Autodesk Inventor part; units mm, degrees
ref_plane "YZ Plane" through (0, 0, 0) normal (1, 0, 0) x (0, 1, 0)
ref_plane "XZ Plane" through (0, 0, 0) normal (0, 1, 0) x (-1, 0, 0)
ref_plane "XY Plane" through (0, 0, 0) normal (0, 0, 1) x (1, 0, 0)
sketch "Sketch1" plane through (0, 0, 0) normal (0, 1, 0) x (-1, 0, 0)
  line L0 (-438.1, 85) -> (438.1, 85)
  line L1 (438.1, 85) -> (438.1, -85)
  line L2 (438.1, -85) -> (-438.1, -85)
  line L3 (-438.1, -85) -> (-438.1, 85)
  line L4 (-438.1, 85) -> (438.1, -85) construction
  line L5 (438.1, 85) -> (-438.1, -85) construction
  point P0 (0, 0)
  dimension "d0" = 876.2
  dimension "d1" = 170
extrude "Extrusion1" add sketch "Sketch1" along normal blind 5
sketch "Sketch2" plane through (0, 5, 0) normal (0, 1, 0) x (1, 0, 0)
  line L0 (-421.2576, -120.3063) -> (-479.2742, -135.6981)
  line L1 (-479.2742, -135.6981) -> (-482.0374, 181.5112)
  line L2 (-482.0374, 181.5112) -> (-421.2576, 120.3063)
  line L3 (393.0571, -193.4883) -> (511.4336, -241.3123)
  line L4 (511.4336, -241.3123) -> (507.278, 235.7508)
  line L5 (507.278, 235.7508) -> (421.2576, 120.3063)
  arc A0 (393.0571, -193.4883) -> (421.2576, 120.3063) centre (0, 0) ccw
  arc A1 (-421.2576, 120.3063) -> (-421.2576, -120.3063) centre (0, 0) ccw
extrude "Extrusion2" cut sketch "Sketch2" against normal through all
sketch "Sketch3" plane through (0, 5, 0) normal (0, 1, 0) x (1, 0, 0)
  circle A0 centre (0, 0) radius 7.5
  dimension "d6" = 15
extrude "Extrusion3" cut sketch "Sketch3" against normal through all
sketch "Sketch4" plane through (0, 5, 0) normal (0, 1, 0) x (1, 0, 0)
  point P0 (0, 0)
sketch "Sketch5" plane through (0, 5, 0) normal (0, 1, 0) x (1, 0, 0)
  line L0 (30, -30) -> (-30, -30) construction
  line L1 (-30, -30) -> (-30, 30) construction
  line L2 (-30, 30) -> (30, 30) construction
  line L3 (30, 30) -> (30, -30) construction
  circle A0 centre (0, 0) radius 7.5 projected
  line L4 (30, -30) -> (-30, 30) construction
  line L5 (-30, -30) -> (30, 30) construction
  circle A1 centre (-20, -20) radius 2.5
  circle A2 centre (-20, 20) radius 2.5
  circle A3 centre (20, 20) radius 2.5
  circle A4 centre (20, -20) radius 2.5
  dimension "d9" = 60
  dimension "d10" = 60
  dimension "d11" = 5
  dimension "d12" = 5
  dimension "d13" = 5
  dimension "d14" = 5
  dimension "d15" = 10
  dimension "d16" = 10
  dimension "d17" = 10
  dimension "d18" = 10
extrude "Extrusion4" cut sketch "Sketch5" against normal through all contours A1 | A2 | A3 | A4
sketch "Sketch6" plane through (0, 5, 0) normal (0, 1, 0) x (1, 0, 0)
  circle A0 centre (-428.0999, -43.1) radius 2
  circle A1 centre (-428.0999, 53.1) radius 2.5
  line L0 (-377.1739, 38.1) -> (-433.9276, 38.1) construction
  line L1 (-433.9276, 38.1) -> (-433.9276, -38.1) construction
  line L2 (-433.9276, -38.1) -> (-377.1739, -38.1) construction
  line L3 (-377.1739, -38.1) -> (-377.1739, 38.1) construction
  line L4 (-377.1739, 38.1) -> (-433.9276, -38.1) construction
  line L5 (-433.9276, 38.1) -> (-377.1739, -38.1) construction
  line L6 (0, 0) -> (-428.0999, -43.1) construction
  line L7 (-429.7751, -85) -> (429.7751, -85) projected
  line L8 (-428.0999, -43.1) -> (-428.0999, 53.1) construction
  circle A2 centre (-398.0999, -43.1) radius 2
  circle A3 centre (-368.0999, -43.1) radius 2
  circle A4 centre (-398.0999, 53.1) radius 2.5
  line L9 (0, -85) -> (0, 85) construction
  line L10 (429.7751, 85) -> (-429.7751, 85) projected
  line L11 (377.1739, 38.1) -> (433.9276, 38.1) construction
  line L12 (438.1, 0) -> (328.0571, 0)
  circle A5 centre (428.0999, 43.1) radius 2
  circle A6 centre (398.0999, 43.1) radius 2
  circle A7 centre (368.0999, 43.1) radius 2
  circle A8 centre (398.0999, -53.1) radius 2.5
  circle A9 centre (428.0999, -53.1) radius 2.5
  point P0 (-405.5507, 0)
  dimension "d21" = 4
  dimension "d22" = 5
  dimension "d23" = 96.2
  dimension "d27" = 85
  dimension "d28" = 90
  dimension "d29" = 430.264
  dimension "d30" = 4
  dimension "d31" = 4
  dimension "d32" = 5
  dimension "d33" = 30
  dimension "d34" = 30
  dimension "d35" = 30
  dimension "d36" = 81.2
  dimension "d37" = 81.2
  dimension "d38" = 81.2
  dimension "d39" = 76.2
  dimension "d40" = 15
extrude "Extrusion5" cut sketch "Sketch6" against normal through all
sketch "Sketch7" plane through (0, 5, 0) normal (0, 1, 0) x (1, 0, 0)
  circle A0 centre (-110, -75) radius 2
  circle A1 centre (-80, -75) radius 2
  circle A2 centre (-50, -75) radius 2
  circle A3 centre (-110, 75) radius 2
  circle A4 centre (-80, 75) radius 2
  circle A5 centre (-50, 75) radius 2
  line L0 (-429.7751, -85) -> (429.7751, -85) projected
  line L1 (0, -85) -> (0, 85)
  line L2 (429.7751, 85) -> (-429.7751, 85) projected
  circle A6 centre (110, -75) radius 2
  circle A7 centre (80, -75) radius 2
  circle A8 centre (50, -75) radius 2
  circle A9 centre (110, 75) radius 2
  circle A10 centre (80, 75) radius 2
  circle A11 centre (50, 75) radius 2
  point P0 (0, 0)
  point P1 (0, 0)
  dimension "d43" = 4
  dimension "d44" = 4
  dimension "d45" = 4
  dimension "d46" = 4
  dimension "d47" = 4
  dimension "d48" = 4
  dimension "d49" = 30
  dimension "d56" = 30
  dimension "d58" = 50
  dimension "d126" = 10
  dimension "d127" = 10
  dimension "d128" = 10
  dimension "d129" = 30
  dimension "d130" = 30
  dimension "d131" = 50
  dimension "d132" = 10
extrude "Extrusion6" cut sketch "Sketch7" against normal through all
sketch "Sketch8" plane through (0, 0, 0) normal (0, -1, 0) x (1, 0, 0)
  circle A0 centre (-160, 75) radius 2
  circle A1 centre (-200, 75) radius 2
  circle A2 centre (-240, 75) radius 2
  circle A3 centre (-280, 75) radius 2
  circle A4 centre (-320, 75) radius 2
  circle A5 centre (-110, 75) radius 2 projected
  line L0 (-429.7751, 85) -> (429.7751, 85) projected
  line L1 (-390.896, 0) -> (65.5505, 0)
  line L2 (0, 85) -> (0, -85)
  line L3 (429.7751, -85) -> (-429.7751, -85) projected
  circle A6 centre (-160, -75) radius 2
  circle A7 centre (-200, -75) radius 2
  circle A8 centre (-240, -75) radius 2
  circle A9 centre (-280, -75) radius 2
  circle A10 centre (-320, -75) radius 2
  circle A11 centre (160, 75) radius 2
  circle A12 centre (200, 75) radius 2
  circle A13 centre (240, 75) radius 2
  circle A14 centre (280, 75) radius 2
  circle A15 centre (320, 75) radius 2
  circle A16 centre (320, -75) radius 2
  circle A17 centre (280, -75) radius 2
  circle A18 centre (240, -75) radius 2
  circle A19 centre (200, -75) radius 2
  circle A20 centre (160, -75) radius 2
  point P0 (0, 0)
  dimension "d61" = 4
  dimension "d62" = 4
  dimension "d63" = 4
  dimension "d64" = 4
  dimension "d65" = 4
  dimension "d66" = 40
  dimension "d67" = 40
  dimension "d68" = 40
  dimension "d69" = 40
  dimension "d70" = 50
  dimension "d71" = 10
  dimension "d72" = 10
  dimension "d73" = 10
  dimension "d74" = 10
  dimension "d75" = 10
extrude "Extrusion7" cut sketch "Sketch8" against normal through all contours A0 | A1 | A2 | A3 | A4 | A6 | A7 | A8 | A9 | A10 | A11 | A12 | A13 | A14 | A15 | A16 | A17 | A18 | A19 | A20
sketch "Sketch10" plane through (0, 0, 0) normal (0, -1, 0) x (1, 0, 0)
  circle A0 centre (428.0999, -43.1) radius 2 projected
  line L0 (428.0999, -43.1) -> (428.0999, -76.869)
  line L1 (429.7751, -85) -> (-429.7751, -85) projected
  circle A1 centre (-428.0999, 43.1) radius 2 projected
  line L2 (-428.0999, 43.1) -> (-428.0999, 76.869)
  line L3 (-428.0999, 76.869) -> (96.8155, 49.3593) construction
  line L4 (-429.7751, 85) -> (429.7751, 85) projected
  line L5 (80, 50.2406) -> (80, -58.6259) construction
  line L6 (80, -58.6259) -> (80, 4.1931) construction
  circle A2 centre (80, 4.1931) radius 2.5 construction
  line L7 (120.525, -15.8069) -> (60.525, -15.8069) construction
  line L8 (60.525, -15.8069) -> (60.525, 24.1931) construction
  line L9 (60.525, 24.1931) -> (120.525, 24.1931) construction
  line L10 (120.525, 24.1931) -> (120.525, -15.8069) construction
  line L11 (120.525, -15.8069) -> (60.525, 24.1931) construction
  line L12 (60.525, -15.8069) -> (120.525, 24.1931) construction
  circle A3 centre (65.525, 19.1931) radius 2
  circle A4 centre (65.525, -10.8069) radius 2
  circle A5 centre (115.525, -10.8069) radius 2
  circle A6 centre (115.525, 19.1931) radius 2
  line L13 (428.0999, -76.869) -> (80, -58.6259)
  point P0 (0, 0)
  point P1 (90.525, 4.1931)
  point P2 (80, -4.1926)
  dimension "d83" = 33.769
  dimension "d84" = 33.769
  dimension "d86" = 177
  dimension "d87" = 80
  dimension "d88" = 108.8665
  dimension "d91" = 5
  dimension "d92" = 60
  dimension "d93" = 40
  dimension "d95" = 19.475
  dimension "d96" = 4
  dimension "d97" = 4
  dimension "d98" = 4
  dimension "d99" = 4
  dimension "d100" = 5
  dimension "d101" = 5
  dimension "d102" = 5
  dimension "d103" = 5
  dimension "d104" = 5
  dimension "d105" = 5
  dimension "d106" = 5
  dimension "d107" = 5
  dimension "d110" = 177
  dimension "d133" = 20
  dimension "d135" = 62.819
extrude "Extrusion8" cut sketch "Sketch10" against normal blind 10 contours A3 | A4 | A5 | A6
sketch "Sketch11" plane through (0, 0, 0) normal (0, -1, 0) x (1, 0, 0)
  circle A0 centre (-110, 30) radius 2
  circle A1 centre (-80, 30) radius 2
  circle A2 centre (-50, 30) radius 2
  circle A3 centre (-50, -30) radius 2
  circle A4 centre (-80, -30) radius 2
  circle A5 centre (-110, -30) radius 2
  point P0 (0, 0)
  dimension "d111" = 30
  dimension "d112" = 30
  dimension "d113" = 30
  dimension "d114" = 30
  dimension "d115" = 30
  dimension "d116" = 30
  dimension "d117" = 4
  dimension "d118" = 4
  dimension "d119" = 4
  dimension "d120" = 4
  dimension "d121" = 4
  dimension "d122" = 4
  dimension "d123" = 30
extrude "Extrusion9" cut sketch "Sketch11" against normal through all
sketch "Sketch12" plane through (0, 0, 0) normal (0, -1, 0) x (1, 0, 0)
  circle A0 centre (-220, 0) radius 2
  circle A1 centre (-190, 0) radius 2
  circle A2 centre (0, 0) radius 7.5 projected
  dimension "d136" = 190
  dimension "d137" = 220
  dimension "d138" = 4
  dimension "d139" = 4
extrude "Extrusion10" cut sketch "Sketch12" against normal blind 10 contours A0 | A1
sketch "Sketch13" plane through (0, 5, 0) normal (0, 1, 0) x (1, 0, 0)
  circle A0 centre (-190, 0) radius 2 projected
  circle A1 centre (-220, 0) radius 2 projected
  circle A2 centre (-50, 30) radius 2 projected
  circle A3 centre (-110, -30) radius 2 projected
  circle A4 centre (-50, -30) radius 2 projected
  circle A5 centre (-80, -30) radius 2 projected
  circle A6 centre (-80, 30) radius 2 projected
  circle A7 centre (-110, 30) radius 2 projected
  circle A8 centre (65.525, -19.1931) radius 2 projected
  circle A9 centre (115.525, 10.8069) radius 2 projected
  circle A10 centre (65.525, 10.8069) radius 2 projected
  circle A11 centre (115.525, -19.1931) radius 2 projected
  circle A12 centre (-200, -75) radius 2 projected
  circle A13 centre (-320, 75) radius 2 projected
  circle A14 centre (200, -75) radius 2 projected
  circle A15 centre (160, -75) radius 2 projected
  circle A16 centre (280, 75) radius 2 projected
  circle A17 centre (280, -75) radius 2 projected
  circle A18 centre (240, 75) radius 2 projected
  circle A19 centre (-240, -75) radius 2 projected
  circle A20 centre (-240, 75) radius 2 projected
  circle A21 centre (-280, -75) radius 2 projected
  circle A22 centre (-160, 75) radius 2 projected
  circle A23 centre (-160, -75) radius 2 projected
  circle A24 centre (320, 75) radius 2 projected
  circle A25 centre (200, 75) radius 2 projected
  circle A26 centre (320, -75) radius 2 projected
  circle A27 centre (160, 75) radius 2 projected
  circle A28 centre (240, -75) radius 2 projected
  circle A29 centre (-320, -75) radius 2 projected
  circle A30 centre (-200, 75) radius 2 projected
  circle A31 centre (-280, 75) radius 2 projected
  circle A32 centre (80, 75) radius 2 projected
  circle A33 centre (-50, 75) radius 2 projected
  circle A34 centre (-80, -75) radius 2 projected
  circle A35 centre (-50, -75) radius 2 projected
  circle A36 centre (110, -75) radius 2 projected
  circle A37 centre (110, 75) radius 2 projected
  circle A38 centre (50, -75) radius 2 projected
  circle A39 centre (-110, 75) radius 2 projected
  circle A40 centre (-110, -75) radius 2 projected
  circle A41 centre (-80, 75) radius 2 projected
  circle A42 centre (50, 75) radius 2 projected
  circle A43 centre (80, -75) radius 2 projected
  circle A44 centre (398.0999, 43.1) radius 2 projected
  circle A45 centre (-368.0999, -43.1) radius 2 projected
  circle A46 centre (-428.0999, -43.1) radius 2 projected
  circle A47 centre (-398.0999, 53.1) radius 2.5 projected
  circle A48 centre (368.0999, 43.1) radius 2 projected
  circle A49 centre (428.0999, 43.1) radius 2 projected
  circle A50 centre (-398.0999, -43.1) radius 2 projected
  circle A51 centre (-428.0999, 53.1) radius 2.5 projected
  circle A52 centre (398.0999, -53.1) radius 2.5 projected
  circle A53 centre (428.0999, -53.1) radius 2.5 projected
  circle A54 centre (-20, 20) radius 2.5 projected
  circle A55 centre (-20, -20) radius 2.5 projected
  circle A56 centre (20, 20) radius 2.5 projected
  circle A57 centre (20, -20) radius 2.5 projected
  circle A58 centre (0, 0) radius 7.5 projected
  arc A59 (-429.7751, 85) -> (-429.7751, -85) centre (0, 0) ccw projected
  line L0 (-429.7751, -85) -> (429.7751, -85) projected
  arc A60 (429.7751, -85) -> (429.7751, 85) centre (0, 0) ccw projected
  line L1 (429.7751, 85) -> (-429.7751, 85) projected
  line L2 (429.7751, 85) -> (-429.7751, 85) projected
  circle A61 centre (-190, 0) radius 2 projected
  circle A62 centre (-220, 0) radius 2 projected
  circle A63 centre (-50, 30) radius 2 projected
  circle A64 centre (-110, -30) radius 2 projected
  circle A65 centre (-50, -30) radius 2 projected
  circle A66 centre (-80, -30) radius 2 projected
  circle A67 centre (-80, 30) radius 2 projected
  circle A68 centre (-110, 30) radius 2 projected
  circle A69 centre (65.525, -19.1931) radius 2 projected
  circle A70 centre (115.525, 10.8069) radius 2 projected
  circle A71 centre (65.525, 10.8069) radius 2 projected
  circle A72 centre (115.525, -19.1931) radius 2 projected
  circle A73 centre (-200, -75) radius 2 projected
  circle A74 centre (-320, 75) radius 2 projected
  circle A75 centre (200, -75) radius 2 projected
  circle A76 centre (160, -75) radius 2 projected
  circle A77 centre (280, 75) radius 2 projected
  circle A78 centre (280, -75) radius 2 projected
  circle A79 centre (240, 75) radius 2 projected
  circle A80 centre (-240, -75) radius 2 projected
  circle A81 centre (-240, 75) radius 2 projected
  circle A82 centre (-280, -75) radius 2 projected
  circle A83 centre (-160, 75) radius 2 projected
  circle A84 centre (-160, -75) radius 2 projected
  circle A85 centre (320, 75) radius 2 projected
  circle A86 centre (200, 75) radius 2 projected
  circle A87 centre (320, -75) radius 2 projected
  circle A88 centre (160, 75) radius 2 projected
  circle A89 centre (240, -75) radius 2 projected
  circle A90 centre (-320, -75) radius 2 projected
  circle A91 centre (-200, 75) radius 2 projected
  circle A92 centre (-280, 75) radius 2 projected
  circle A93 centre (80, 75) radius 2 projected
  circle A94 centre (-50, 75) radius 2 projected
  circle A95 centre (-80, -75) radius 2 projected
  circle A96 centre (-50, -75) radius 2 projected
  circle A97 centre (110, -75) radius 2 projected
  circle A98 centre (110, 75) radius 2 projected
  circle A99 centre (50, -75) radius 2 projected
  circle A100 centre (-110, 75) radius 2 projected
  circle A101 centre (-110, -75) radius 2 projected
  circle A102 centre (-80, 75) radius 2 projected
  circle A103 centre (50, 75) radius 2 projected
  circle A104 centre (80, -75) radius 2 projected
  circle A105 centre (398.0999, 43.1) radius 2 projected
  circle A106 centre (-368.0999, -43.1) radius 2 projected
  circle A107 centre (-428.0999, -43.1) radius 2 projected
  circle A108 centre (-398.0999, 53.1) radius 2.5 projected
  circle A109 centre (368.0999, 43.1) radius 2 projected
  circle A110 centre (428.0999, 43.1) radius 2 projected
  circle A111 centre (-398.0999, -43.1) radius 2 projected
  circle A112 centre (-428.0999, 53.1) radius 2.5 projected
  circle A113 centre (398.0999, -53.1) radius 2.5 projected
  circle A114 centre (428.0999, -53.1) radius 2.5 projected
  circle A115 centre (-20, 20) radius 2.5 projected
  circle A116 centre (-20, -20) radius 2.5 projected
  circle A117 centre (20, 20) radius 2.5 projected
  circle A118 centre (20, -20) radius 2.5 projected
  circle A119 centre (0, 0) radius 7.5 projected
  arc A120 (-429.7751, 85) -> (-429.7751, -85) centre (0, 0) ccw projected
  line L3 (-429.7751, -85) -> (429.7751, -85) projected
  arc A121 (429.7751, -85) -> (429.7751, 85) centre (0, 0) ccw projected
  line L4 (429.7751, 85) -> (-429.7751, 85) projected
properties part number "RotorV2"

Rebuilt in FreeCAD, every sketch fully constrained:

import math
import FreeCAD as App
import Part
import Sketcher

V = App.Vector
Q = App.Units.Quantity

doc = App.newDocument("Part")
body = doc.addObject("PartDesign::Body", "Body")

sketch1 = body.newObject("Sketcher::SketchObject", "Sketch")
sketch1.AttachmentSupport = (doc.getObject("XZ_Plane"), [""])
sketch1.MapMode = "FlatFace"
sketch1.addGeometry(Part.LineSegment(V(-438, 85, 0), V(438, 85, 0)), False)
sketch1.addGeometry(Part.LineSegment(V(438, 85, 0), V(438, -85, 0)), False)
sketch1.addGeometry(Part.LineSegment(V(438, -85, 0), V(-438, -85, 0)), False)
sketch1.addGeometry(Part.LineSegment(V(-438, -85, 0), V(-438, 85, 0)), False)
sketch1.addConstraint(Sketcher.Constraint("Coincident", 0, 2, 1, 1))
sketch1.addConstraint(Sketcher.Constraint("Coincident", 1, 2, 2, 1))
sketch1.addConstraint(Sketcher.Constraint("Coincident", 2, 2, 3, 1))
sketch1.addConstraint(Sketcher.Constraint("Coincident", 3, 2, 0, 1))
sketch1.addConstraint(Sketcher.Constraint("Horizontal", 0))
sketch1.addConstraint(Sketcher.Constraint("Vertical", 1))
sketch1.addConstraint(Sketcher.Constraint("Horizontal", 2))
sketch1.addConstraint(Sketcher.Constraint("Vertical", 3))
sketch1.addConstraint(Sketcher.Constraint("Symmetric", 0, 2, 2, 2, -1, 1))
sketch1.addConstraint(Sketcher.Constraint("DistanceY", 1, 2, 1, 1, 170.0))
sketch1.addConstraint(Sketcher.Constraint("DistanceX", 0, 1, 0, 2, 876.2))
pad1 = body.newObject("PartDesign::Pad", "Pad")
pad1.Profile = sketch1
pad1.Length = 5
pad1.Reversed = True

sketch2 = body.newObject("Sketcher::SketchObject", "Sketch001")
sketch2.AttachmentSupport = (doc.getObject("XZ_Plane"), [""])
sketch2.MapMode = "FlatFace"
sketch2.AttachmentOffset = App.Placement(V(0, 0, -5), App.Rotation())
sketch2.addGeometry(Part.LineSegment(V(-479, 136, 0), V(-421, 120, 0)), False)
sketch2.addGeometry(Part.ArcOfCircle(Part.Circle(V(0, 0, 0), V(0, 0, 1), 438), math.radians(164), math.radians(196)), False)
sketch2.addGeometry(Part.LineSegment(V(-421, -120, 0), V(-482, -182, 0)), False)
sketch2.addGeometry(Part.LineSegment(V(-482, -182, 0), V(-479, 136, 0)), False)
sketch2.addGeometry(Part.ArcOfCircle(Part.Circle(V(0, 0, 0), V(0, 0, 1), 438), math.radians(-16), math.radians(26)), False)
sketch2.addGeometry(Part.LineSegment(V(393, 193, 0), V(511, 241, 0)), False)
sketch2.addGeometry(Part.LineSegment(V(511, 241, 0), V(507, -236, 0)), False)
sketch2.addGeometry(Part.LineSegment(V(507, -236, 0), V(421, -120, 0)), False)
sketch2.addConstraint(Sketcher.Constraint("Coincident", 0, 2, 1, 1))
sketch2.addConstraint(Sketcher.Constraint("Coincident", 1, 2, 2, 1))
sketch2.addConstraint(Sketcher.Constraint("Coincident", 2, 2, 3, 1))
sketch2.addConstraint(Sketcher.Constraint("Coincident", 3, 2, 0, 1))
sketch2.addConstraint(Sketcher.Constraint("Coincident", 4, 2, 5, 1))
sketch2.addConstraint(Sketcher.Constraint("Coincident", 5, 2, 6, 1))
sketch2.addConstraint(Sketcher.Constraint("Coincident", 6, 2, 7, 1))
sketch2.addConstraint(Sketcher.Constraint("Coincident", 7, 2, 4, 1))
sketch2.addConstraint(Sketcher.Constraint("Coincident", 1, 3, -1, 1))
sketch2.addConstraint(Sketcher.Constraint("Coincident", 4, 3, -1, 1))
sketch2.addConstraint(Sketcher.Constraint("Equal", 1, 4))
sketch2.addConstraint(Sketcher.Constraint("Parallel", 3, 6))
sketch2.addConstraint(Sketcher.Constraint("Horizontal", 1, 2, 7, 2))
sketch2.addConstraint(Sketcher.Constraint("Vertical", 0, 2, 1, 2))
sketch2.addConstraint(Sketcher.Constraint("Radius", 1, 438.1))
sketch2.addConstraint(Sketcher.Constraint("Angle", 2, Q("-134.8003 deg")))
sketch2.addConstraint(Sketcher.Constraint("Angle", 3, Q("89.501 deg")))
sketch2.addConstraint(Sketcher.Constraint("Angle", 7, Q("126.6907 deg")))
sketch2.addConstraint(Sketcher.Constraint("Distance", 5, 127.672))
sketch2.addConstraint(Sketcher.Constraint("DistanceY", -1, 1, 3, 2, 135.698))
sketch2.addConstraint(Sketcher.Constraint("DistanceX", -1, 1, 4, 2, 393.057))
sketch2.addConstraint(Sketcher.Constraint("DistanceX", -1, 1, 6, 2, 507.278))
sketch2.addConstraint(Sketcher.Constraint("DistanceY", 0, 2, 5, 2, 121.006))
sketch2.addConstraint(Sketcher.Constraint("Distance", 0, 60.0236))
pocket1 = body.newObject("PartDesign::Pocket", "Pocket")
pocket1.Profile = sketch2
pocket1.Type = "ThroughAll"
pocket1.Reversed = True

sketch3 = body.newObject("Sketcher::SketchObject", "Sketch002")
sketch3.AttachmentSupport = (doc.getObject("XZ_Plane"), [""])
sketch3.MapMode = "FlatFace"
sketch3.AttachmentOffset = App.Placement(V(0, 0, -5), App.Rotation())
sketch3.addGeometry(Part.Circle(V(0, 0, 0), V(0, 0, 1), 8), False)
sketch3.addConstraint(Sketcher.Constraint("Coincident", 0, 3, -1, 1))
sketch3.addConstraint(Sketcher.Constraint("Diameter", 0, 15.0))
pocket2 = body.newObject("PartDesign::Pocket", "Pocket001")
pocket2.Profile = sketch3
pocket2.Type = "ThroughAll"
pocket2.Reversed = True

sketch4 = body.newObject("Sketcher::SketchObject", "Sketch003")
sketch4.AttachmentSupport = (doc.getObject("XZ_Plane"), [""])
sketch4.MapMode = "FlatFace"
sketch4.AttachmentOffset = App.Placement(V(0, 0, -5), App.Rotation())
sketch4.addGeometry(Part.Circle(V(-20, 20, 0), V(0, 0, 1), 2.5), False)
sketch4.addGeometry(Part.Circle(V(-20, -20, 0), V(0, 0, 1), 2.5), False)
sketch4.addGeometry(Part.Circle(V(20, -20, 0), V(0, 0, 1), 2.5), False)
sketch4.addGeometry(Part.Circle(V(20, 20, 0), V(0, 0, 1), 2.5), False)
sketch4.addConstraint(Sketcher.Constraint("Equal", 0, 1))
sketch4.addConstraint(Sketcher.Constraint("Equal", 1, 2))
sketch4.addConstraint(Sketcher.Constraint("Equal", 2, 3))
sketch4.addConstraint(Sketcher.Constraint("Symmetric", 0, 3, 2, 3, -1, 1))
sketch4.addConstraint(Sketcher.Constraint("Symmetric", 1, 3, 3, 3, -1, 1))
sketch4.addConstraint(Sketcher.Constraint("Symmetric", 1, 3, 2, 3, -2))
sketch4.addConstraint(Sketcher.Constraint("Diameter", 0, 5.0))
sketch4.addConstraint(Sketcher.Constraint("DistanceX", 0, 3, -1, 1, 20.0))
sketch4.addConstraint(Sketcher.Constraint("DistanceY", -1, 1, 0, 3, 20.0))
pocket3 = body.newObject("PartDesign::Pocket", "Pocket002")
pocket3.Profile = sketch4
pocket3.Type = "ThroughAll"
pocket3.Reversed = True

sketch5 = body.newObject("Sketcher::SketchObject", "Sketch004")
sketch5.AttachmentSupport = (doc.getObject("XZ_Plane"), [""])
sketch5.MapMode = "FlatFace"
sketch5.AttachmentOffset = App.Placement(V(0, 0, -5), App.Rotation())
sketch5.addGeometry(Part.Circle(V(-428.1, 43.1, 0), V(0, 0, 1), 2), False)
sketch5.addGeometry(Part.Circle(V(-428.1, -53.1, 0), V(0, 0, 1), 2.5), False)
sketch5.addGeometry(Part.Circle(V(-398.1, 43.1, 0), V(0, 0, 1), 2), False)
sketch5.addGeometry(Part.Circle(V(-368.1, 43.1, 0), V(0, 0, 1), 2), False)
sketch5.addGeometry(Part.Circle(V(-398.1, -53.1, 0), V(0, 0, 1), 2.5), False)
sketch5.addGeometry(Part.Circle(V(428.1, -43.1, 0), V(0, 0, 1), 2), False)
sketch5.addGeometry(Part.Circle(V(398.1, -43.1, 0), V(0, 0, 1), 2), False)
sketch5.addGeometry(Part.Circle(V(368.1, -43.1, 0), V(0, 0, 1), 2), False)
sketch5.addGeometry(Part.Circle(V(398.1, 53.1, 0), V(0, 0, 1), 2.5), False)
sketch5.addGeometry(Part.Circle(V(428.1, 53.1, 0), V(0, 0, 1), 2.5), False)
sketch5.addConstraint(Sketcher.Constraint("Equal", 0, 2))
sketch5.addConstraint(Sketcher.Constraint("Equal", 2, 3))
sketch5.addConstraint(Sketcher.Constraint("Equal", 1, 4))
sketch5.addConstraint(Sketcher.Constraint("Equal", 3, 5))
sketch5.addConstraint(Sketcher.Constraint("Equal", 5, 6))
sketch5.addConstraint(Sketcher.Constraint("Equal", 6, 7))
sketch5.addConstraint(Sketcher.Constraint("Equal", 4, 8))
sketch5.addConstraint(Sketcher.Constraint("Equal", 8, 9))
sketch5.addConstraint(Sketcher.Constraint("Symmetric", 0, 3, 5, 3, -1, 1))
sketch5.addConstraint(Sketcher.Constraint("Symmetric", 2, 3, 6, 3, -1, 1))
sketch5.addConstraint(Sketcher.Constraint("Symmetric", 3, 3, 7, 3, -1, 1))
sketch5.addConstraint(Sketcher.Constraint("Symmetric", 4, 3, 8, 3, -1, 1))
sketch5.addConstraint(Sketcher.Constraint("Symmetric", 1, 3, 9, 3, -1, 1))
sketch5.addConstraint(Sketcher.Constraint("Horizontal", 0, 3, 2, 3))
sketch5.addConstraint(Sketcher.Constraint("Horizontal", 2, 3, 3, 3))
sketch5.addConstraint(Sketcher.Constraint("Horizontal", 1, 3, 4, 3))
sketch5.addConstraint(Sketcher.Constraint("Vertical", 0, 3, 1, 3))
sketch5.addConstraint(Sketcher.Constraint("Vertical", 2, 3, 4, 3))
sketch5.addConstraint(Sketcher.Constraint("Diameter", 0, 4.0))
sketch5.addConstraint(Sketcher.Constraint("Diameter", 1, 5.0))
sketch5.addConstraint(Sketcher.Constraint("DistanceX", 0, 3, 2, 3, 30.0))
sketch5.addConstraint(Sketcher.Constraint("DistanceX", 2, 3, 3, 3, 30.0))
sketch5.addConstraint(Sketcher.Constraint("DistanceY", 1, 3, 0, 3, 96.2))
sketch5.addConstraint(Sketcher.Constraint("DistanceY", 4, 3, 5, 3, 10.0))
sketch5.addConstraint(Sketcher.Constraint("DistanceX", 0, 3, -1, 1, 428.1))
pocket4 = body.newObject("PartDesign::Pocket", "Pocket003")
pocket4.Profile = sketch5
pocket4.Type = "ThroughAll"
pocket4.Reversed = True

sketch6 = body.newObject("Sketcher::SketchObject", "Sketch005")
sketch6.AttachmentSupport = (doc.getObject("XZ_Plane"), [""])
sketch6.MapMode = "FlatFace"
sketch6.AttachmentOffset = App.Placement(V(0, 0, -5), App.Rotation())
sketch6.addGeometry(Part.Circle(V(-110, 75, 0), V(0, 0, 1), 2), False)
sketch6.addGeometry(Part.Circle(V(-80, 75, 0), V(0, 0, 1), 2), False)
sketch6.addGeometry(Part.Circle(V(-50, 75, 0), V(0, 0, 1), 2), False)
sketch6.addGeometry(Part.Circle(V(-110, -75, 0), V(0, 0, 1), 2), False)
sketch6.addGeometry(Part.Circle(V(-80, -75, 0), V(0, 0, 1), 2), False)
sketch6.addGeometry(Part.Circle(V(-50, -75, 0), V(0, 0, 1), 2), False)
sketch6.addGeometry(Part.Circle(V(110, 75, 0), V(0, 0, 1), 2), False)
sketch6.addGeometry(Part.Circle(V(80, 75, 0), V(0, 0, 1), 2), False)
sketch6.addGeometry(Part.Circle(V(50, 75, 0), V(0, 0, 1), 2), False)
sketch6.addGeometry(Part.Circle(V(110, -75, 0), V(0, 0, 1), 2), False)
sketch6.addGeometry(Part.Circle(V(80, -75, 0), V(0, 0, 1), 2), False)
sketch6.addGeometry(Part.Circle(V(50, -75, 0), V(0, 0, 1), 2), False)
sketch6.addConstraint(Sketcher.Constraint("Equal", 0, 1))
sketch6.addConstraint(Sketcher.Constraint("Equal", 1, 2))
sketch6.addConstraint(Sketcher.Constraint("Equal", 2, 3))
sketch6.addConstraint(Sketcher.Constraint("Equal", 3, 4))
sketch6.addConstraint(Sketcher.Constraint("Equal", 4, 5))
sketch6.addConstraint(Sketcher.Constraint("Equal", 5, 6))
sketch6.addConstraint(Sketcher.Constraint("Equal", 6, 7))
sketch6.addConstraint(Sketcher.Constraint("Equal", 7, 8))
sketch6.addConstraint(Sketcher.Constraint("Equal", 8, 9))
sketch6.addConstraint(Sketcher.Constraint("Equal", 9, 10))
sketch6.addConstraint(Sketcher.Constraint("Equal", 10, 11))
sketch6.addConstraint(Sketcher.Constraint("Symmetric", 3, 3, 6, 3, -1, 1))
sketch6.addConstraint(Sketcher.Constraint("Symmetric", 4, 3, 7, 3, -1, 1))
sketch6.addConstraint(Sketcher.Constraint("Symmetric", 5, 3, 8, 3, -1, 1))
sketch6.addConstraint(Sketcher.Constraint("Symmetric", 0, 3, 9, 3, -1, 1))
sketch6.addConstraint(Sketcher.Constraint("Symmetric", 1, 3, 10, 3, -1, 1))
sketch6.addConstraint(Sketcher.Constraint("Symmetric", 2, 3, 11, 3, -1, 1))
sketch6.addConstraint(Sketcher.Constraint("Symmetric", 0, 3, 6, 3, -2))
sketch6.addConstraint(Sketcher.Constraint("Symmetric", 1, 3, 7, 3, -2))
sketch6.addConstraint(Sketcher.Constraint("Symmetric", 2, 3, 8, 3, -2))
sketch6.addConstraint(Sketcher.Constraint("Horizontal", 0, 3, 1, 3))
sketch6.addConstraint(Sketcher.Constraint("Horizontal", 1, 3, 2, 3))
sketch6.addConstraint(Sketcher.Constraint("Diameter", 0, 4.0))
sketch6.addConstraint(Sketcher.Constraint("DistanceX", 2, 3, -1, 1, 50.0))
sketch6.addConstraint(Sketcher.Constraint("DistanceX", 0, 3, 1, 3, 30.0))
sketch6.addConstraint(Sketcher.Constraint("DistanceX", 1, 3, 2, 3, 30.0))
sketch6.addConstraint(Sketcher.Constraint("DistanceY", -1, 1, 0, 3, 75.0))
pocket5 = body.newObject("PartDesign::Pocket", "Pocket004")
pocket5.Profile = sketch6
pocket5.Type = "ThroughAll"
pocket5.Reversed = True

sketch7 = body.newObject("Sketcher::SketchObject", "Sketch006")
sketch7.AttachmentSupport = (doc.getObject("XZ_Plane"), [""])
sketch7.MapMode = "FlatFace"
sketch7.addGeometry(Part.Circle(V(-160, 75, 0), V(0, 0, 1), 2), False)
sketch7.addGeometry(Part.Circle(V(-200, 75, 0), V(0, 0, 1), 2), False)
sketch7.addGeometry(Part.Circle(V(-240, 75, 0), V(0, 0, 1), 2), False)
sketch7.addGeometry(Part.Circle(V(-280, 75, 0), V(0, 0, 1), 2), False)
sketch7.addGeometry(Part.Circle(V(-320, 75, 0), V(0, 0, 1), 2), False)
sketch7.addGeometry(Part.Circle(V(-160, -75, 0), V(0, 0, 1), 2), False)
sketch7.addGeometry(Part.Circle(V(-200, -75, 0), V(0, 0, 1), 2), False)
sketch7.addGeometry(Part.Circle(V(-240, -75, 0), V(0, 0, 1), 2), False)
sketch7.addGeometry(Part.Circle(V(-280, -75, 0), V(0, 0, 1), 2), False)
sketch7.addGeometry(Part.Circle(V(-320, -75, 0), V(0, 0, 1), 2), False)
sketch7.addGeometry(Part.Circle(V(160, 75, 0), V(0, 0, 1), 2), False)
sketch7.addGeometry(Part.Circle(V(200, 75, 0), V(0, 0, 1), 2), False)
sketch7.addGeometry(Part.Circle(V(240, 75, 0), V(0, 0, 1), 2), False)
sketch7.addGeometry(Part.Circle(V(280, 75, 0), V(0, 0, 1), 2), False)
sketch7.addGeometry(Part.Circle(V(320, 75, 0), V(0, 0, 1), 2), False)
sketch7.addGeometry(Part.Circle(V(320, -75, 0), V(0, 0, 1), 2), False)
sketch7.addGeometry(Part.Circle(V(280, -75, 0), V(0, 0, 1), 2), False)
sketch7.addGeometry(Part.Circle(V(240, -75, 0), V(0, 0, 1), 2), False)
sketch7.addGeometry(Part.Circle(V(200, -75, 0), V(0, 0, 1), 2), False)
sketch7.addGeometry(Part.Circle(V(160, -75, 0), V(0, 0, 1), 2), False)
sketch7.addConstraint(Sketcher.Constraint("Equal", 0, 1))
sketch7.addConstraint(Sketcher.Constraint("Equal", 1, 2))
sketch7.addConstraint(Sketcher.Constraint("Equal", 2, 3))
sketch7.addConstraint(Sketcher.Constraint("Equal", 3, 4))
sketch7.addConstraint(Sketcher.Constraint("Equal", 4, 5))
sketch7.addConstraint(Sketcher.Constraint("Equal", 5, 6))
sketch7.addConstraint(Sketcher.Constraint("Equal", 6, 7))
sketch7.addConstraint(Sketcher.Constraint("Equal", 7, 8))
sketch7.addConstraint(Sketcher.Constraint("Equal", 8, 9))
sketch7.addConstraint(Sketcher.Constraint("Equal", 9, 10))
sketch7.addConstraint(Sketcher.Constraint("Equal", 10, 11))
sketch7.addConstraint(Sketcher.Constraint("Equal", 11, 12))
sketch7.addConstraint(Sketcher.Constraint("Equal", 12, 13))
sketch7.addConstraint(Sketcher.Constraint("Equal", 13, 14))
sketch7.addConstraint(Sketcher.Constraint("Equal", 14, 15))
sketch7.addConstraint(Sketcher.Constraint("Equal", 15, 16))
sketch7.addConstraint(Sketcher.Constraint("Equal", 16, 17))
sketch7.addConstraint(Sketcher.Constraint("Equal", 17, 18))
sketch7.addConstraint(Sketcher.Constraint("Equal", 18, 19))
sketch7.addConstraint(Sketcher.Constraint("Symmetric", 5, 3, 10, 3, -1, 1))
sketch7.addConstraint(Sketcher.Constraint("Symmetric", 6, 3, 11, 3, -1, 1))
sketch7.addConstraint(Sketcher.Constraint("Symmetric", 7, 3, 12, 3, -1, 1))
sketch7.addConstraint(Sketcher.Constraint("Symmetric", 8, 3, 13, 3, -1, 1))
sketch7.addConstraint(Sketcher.Constraint("Symmetric", 9, 3, 14, 3, -1, 1))
sketch7.addConstraint(Sketcher.Constraint("Symmetric", 4, 3, 15, 3, -1, 1))
sketch7.addConstraint(Sketcher.Constraint("Symmetric", 3, 3, 16, 3, -1, 1))
sketch7.addConstraint(Sketcher.Constraint("Symmetric", 2, 3, 17, 3, -1, 1))
sketch7.addConstraint(Sketcher.Constraint("Symmetric", 1, 3, 18, 3, -1, 1))
sketch7.addConstraint(Sketcher.Constraint("Symmetric", 0, 3, 19, 3, -1, 1))
sketch7.addConstraint(Sketcher.Constraint("Symmetric", 0, 3, 10, 3, -2))
sketch7.addConstraint(Sketcher.Constraint("Symmetric", 1, 3, 11, 3, -2))
sketch7.addConstraint(Sketcher.Constraint("Symmetric", 2, 3, 12, 3, -2))
sketch7.addConstraint(Sketcher.Constraint("Symmetric", 3, 3, 13, 3, -2))
sketch7.addConstraint(Sketcher.Constraint("Symmetric", 4, 3, 14, 3, -2))
sketch7.addConstraint(Sketcher.Constraint("Horizontal", 0, 3, 1, 3))
sketch7.addConstraint(Sketcher.Constraint("Horizontal", 1, 3, 2, 3))
sketch7.addConstraint(Sketcher.Constraint("Horizontal", 2, 3, 3, 3))
sketch7.addConstraint(Sketcher.Constraint("Horizontal", 3, 3, 4, 3))
sketch7.addConstraint(Sketcher.Constraint("Diameter", 0, 4.0))
sketch7.addConstraint(Sketcher.Constraint("DistanceX", 1, 3, 0, 3, 40.0))
sketch7.addConstraint(Sketcher.Constraint("DistanceX", 2, 3, 1, 3, 40.0))
sketch7.addConstraint(Sketcher.Constraint("DistanceX", 3, 3, 2, 3, 40.0))
sketch7.addConstraint(Sketcher.Constraint("DistanceX", 4, 3, 3, 3, 40.0))
sketch7.addConstraint(Sketcher.Constraint("DistanceX", 0, 3, -1, 1, 160.0))
sketch7.addConstraint(Sketcher.Constraint("DistanceY", -1, 1, 0, 3, 75.0))
pocket6 = body.newObject("PartDesign::Pocket", "Pocket005")
pocket6.Profile = sketch7
pocket6.Type = "ThroughAll"

sketch8 = body.newObject("Sketcher::SketchObject", "Sketch007")
sketch8.AttachmentSupport = (doc.getObject("XZ_Plane"), [""])
sketch8.MapMode = "FlatFace"
sketch8.addGeometry(Part.Circle(V(65.5, 19.2, 0), V(0, 0, 1), 2), False)
sketch8.addGeometry(Part.Circle(V(65.5, -10.8, 0), V(0, 0, 1), 2), False)
sketch8.addGeometry(Part.Circle(V(115.5, -10.8, 0), V(0, 0, 1), 2), False)
sketch8.addGeometry(Part.Circle(V(115.5, 19.2, 0), V(0, 0, 1), 2), False)
sketch8.addConstraint(Sketcher.Constraint("Equal", 0, 1))
sketch8.addConstraint(Sketcher.Constraint("Equal", 1, 2))
sketch8.addConstraint(Sketcher.Constraint("Equal", 2, 3))
sketch8.addConstraint(Sketcher.Constraint("Horizontal", 1, 3, 2, 3))
sketch8.addConstraint(Sketcher.Constraint("Horizontal", 0, 3, 3, 3))
sketch8.addConstraint(Sketcher.Constraint("Vertical", 0, 3, 1, 3))
sketch8.addConstraint(Sketcher.Constraint("Vertical", 2, 3, 3, 3))
sketch8.addConstraint(Sketcher.Constraint("Diameter", 0, 4.0))
sketch8.addConstraint(Sketcher.Constraint("DistanceY", 1, 3, 0, 3, 30.0))
sketch8.addConstraint(Sketcher.Constraint("DistanceX", 1, 3, 2, 3, 50.0))
sketch8.addConstraint(Sketcher.Constraint("DistanceX", -1, 1, 0, 3, 65.525))
sketch8.addConstraint(Sketcher.Constraint("DistanceY", -1, 1, 0, 3, 19.193))
pocket7 = body.newObject("PartDesign::Pocket", "Pocket006")
pocket7.Profile = sketch8
pocket7.Length = 10

sketch9 = body.newObject("Sketcher::SketchObject", "Sketch008")
sketch9.AttachmentSupport = (doc.getObject("XZ_Plane"), [""])
sketch9.MapMode = "FlatFace"
sketch9.addGeometry(Part.Circle(V(-110, 30, 0), V(0, 0, 1), 2), False)
sketch9.addGeometry(Part.Circle(V(-80, 30, 0), V(0, 0, 1), 2), False)
sketch9.addGeometry(Part.Circle(V(-50, 30, 0), V(0, 0, 1), 2), False)
sketch9.addGeometry(Part.Circle(V(-50, -30, 0), V(0, 0, 1), 2), False)
sketch9.addGeometry(Part.Circle(V(-80, -30, 0), V(0, 0, 1), 2), False)
sketch9.addGeometry(Part.Circle(V(-110, -30, 0), V(0, 0, 1), 2), False)
sketch9.addConstraint(Sketcher.Constraint("Equal", 0, 1))
sketch9.addConstraint(Sketcher.Constraint("Equal", 1, 2))
sketch9.addConstraint(Sketcher.Constraint("Equal", 2, 3))
sketch9.addConstraint(Sketcher.Constraint("Equal", 3, 4))
sketch9.addConstraint(Sketcher.Constraint("Equal", 4, 5))
sketch9.addConstraint(Sketcher.Constraint("Symmetric", 2, 3, 3, 3, -1))
sketch9.addConstraint(Sketcher.Constraint("Symmetric", 1, 3, 4, 3, -1))
sketch9.addConstraint(Sketcher.Constraint("Symmetric", 0, 3, 5, 3, -1))
sketch9.addConstraint(Sketcher.Constraint("Horizontal", 0, 3, 1, 3))
sketch9.addConstraint(Sketcher.Constraint("Horizontal", 1, 3, 2, 3))
sketch9.addConstraint(Sketcher.Constraint("Diameter", 0, 4.0))
sketch9.addConstraint(Sketcher.Constraint("DistanceY", -1, 1, 0, 3, 30.0))
sketch9.addConstraint(Sketcher.Constraint("DistanceX", 0, 3, 1, 3, 30.0))
sketch9.addConstraint(Sketcher.Constraint("DistanceX", 1, 3, 2, 3, 30.0))
sketch9.addConstraint(Sketcher.Constraint("DistanceX", 0, 3, -1, 1, 110.0))
pocket8 = body.newObject("PartDesign::Pocket", "Pocket007")
pocket8.Profile = sketch9
pocket8.Type = "ThroughAll"

sketch10 = body.newObject("Sketcher::SketchObject", "Sketch009")
sketch10.AttachmentSupport = (doc.getObject("XZ_Plane"), [""])
sketch10.MapMode = "FlatFace"
sketch10.addGeometry(Part.Circle(V(-220, 0, 0), V(0, 0, 1), 2), False)
sketch10.addGeometry(Part.Circle(V(-190, 0, 0), V(0, 0, 1), 2), False)
sketch10.addConstraint(Sketcher.Constraint("Equal", 0, 1))
sketch10.addConstraint(Sketcher.Constraint("PointOnObject", 0, 3, -1))
sketch10.addConstraint(Sketcher.Constraint("PointOnObject", 1, 3, -1))
sketch10.addConstraint(Sketcher.Constraint("Diameter", 0, 4.0))
sketch10.addConstraint(Sketcher.Constraint("DistanceX", 0, 3, -1, 1, 220.0))
sketch10.addConstraint(Sketcher.Constraint("DistanceX", 1, 3, -1, 1, 190.0))
pocket9 = body.newObject("PartDesign::Pocket", "Pocket008")
pocket9.Profile = sketch10
pocket9.Length = 10

doc.recompute()
